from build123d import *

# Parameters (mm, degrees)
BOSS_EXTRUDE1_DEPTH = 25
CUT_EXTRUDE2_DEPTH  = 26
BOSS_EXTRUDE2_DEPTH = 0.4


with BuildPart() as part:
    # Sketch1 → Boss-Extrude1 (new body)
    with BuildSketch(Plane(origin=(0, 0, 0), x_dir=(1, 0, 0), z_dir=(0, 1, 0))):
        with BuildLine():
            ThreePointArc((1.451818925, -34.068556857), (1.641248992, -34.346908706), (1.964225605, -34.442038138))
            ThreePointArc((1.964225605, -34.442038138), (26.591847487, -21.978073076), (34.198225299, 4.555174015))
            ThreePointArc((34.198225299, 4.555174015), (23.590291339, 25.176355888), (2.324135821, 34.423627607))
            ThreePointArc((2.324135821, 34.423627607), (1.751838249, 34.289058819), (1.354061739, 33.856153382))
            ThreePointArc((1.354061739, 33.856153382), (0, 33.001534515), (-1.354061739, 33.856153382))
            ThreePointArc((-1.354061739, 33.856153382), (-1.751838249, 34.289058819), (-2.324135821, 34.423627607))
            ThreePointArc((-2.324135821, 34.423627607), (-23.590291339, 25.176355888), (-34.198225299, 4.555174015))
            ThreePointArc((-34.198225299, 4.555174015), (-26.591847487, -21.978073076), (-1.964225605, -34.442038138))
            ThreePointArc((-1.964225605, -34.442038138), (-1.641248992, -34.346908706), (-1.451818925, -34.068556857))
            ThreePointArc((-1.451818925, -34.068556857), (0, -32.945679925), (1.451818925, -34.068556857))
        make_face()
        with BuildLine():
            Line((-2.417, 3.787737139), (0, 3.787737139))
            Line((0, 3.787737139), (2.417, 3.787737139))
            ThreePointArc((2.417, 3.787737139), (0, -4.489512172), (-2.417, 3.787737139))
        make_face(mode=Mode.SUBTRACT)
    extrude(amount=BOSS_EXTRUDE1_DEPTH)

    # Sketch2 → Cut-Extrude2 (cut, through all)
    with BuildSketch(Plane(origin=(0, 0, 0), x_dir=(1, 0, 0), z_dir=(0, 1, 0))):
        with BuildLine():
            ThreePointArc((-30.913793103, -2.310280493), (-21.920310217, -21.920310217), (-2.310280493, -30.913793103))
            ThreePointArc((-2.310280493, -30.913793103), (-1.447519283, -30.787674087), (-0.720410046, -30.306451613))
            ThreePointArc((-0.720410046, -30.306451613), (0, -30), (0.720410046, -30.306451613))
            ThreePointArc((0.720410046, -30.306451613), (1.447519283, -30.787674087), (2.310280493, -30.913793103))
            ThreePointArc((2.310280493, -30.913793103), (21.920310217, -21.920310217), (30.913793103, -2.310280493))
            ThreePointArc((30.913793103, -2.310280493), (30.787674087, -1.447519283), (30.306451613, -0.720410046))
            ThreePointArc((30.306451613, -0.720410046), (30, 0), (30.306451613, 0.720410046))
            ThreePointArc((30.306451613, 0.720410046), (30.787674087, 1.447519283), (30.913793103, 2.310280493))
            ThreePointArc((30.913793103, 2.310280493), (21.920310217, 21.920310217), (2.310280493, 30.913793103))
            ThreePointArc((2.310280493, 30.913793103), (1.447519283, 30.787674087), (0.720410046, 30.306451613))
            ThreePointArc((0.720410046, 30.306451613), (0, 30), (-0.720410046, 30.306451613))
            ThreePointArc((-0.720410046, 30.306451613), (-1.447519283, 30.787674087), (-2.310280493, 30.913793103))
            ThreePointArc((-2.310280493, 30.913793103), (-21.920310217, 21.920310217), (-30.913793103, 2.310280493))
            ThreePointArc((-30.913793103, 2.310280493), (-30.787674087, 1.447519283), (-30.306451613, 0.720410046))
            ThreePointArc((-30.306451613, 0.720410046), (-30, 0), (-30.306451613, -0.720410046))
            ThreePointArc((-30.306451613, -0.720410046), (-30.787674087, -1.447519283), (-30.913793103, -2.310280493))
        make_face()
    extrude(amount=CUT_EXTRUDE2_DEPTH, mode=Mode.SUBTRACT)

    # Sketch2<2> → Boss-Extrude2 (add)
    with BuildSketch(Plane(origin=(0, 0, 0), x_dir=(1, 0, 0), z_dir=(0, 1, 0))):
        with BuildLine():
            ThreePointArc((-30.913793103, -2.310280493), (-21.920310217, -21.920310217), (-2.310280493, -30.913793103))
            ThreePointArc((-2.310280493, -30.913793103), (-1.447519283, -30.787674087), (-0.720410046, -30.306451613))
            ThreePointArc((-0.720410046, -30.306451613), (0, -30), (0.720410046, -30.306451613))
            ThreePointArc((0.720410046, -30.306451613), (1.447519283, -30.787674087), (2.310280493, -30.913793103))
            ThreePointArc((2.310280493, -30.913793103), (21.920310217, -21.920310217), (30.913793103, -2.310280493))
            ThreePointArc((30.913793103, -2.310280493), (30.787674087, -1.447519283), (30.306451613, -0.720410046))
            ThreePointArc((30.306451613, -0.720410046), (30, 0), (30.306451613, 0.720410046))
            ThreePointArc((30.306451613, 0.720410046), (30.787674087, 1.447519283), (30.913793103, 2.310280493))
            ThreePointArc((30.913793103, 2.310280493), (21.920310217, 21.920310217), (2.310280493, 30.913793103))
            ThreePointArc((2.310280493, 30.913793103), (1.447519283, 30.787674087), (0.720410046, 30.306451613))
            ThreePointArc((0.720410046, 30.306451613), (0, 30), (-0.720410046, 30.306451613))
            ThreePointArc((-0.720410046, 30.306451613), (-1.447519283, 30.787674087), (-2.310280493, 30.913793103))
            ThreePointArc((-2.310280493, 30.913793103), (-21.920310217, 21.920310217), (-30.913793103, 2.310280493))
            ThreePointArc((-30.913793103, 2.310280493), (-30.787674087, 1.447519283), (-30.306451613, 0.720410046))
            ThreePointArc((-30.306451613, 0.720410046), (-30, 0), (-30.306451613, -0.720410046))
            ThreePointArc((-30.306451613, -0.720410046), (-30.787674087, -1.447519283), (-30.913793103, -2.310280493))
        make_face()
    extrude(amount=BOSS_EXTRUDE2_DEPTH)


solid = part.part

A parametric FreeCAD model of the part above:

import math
import FreeCAD as App
import Part
import Sketcher
Q = App.Units.Quantity

doc = App.newDocument("Part")
body = doc.addObject("PartDesign::Body", "Body")

sketch1 = body.newObject("Sketcher::SketchObject", "Sketch")
sketch1.AttachmentSupport = (doc.getObject("XZ_Plane"), [""])
sketch1.MapMode = "FlatFace"
sketch1.addGeometry(Part.ArcOfCircle(Part.Circle(App.Vector(1.9, 33.9, 0), App.Vector(0, 0, 1), 0.5), math.radians(87), math.radians(165)), False)
sketch1.addGeometry(Part.ArcOfCircle(Part.Circle(App.Vector(0, 0, 0), App.Vector(0, 0, 1), 34.5), math.radians(-8), math.radians(87)), False)
sketch1.addGeometry(Part.ArcOfCircle(Part.Circle(App.Vector(0, 0, 0), App.Vector(0, 0, 1), 34.5), math.radians(-86), math.radians(-8)), False)
sketch1.addGeometry(Part.ArcOfCircle(Part.Circle(App.Vector(2.3, -33.4, 0), App.Vector(0, 0, 1), 1), math.radians(-155), math.radians(-86)), False)
sketch1.addGeometry(Part.ArcOfCircle(Part.Circle(App.Vector(0, -34.5, 0), App.Vector(0, 0, 1), 1.5), math.radians(25), math.radians(155)), False)
sketch1.addGeometry(Part.ArcOfCircle(Part.Circle(App.Vector(-2.3, -33.4, 0), App.Vector(0, 0, 1), 1), math.radians(-94), math.radians(-25)), False)
sketch1.addGeometry(Part.ArcOfCircle(Part.Circle(App.Vector(0, 0, 0), App.Vector(0, 0, 1), 34.5), math.radians(-172), math.radians(-94)), False)
sketch1.addGeometry(Part.ArcOfCircle(Part.Circle(App.Vector(0, 0, 0), App.Vector(0, 0, 1), 34.5), math.radians(93), math.radians(188)), False)
sketch1.addGeometry(Part.ArcOfCircle(Part.Circle(App.Vector(-1.9, 33.9, 0), App.Vector(0, 0, 1), 0.5), math.radians(15), math.radians(93)), False)
sketch1.addGeometry(Part.ArcOfCircle(Part.Circle(App.Vector(0, 34.4, 0), App.Vector(0, 0, 1), 1.5), math.radians(-165), math.radians(-15)), False)
sketch1.addGeometry(Part.ArcOfCircle(Part.Circle(App.Vector(0, 0, 0), App.Vector(0, 0, 1), 4.5), math.radians(-57), math.radians(237)), False)
sketch1.addGeometry(Part.LineSegment(App.Vector(-2.4, -3.8, 0), App.Vector(2.4, -3.8, 0)), False)
sketch1.addConstraint(Sketcher.Constraint("Tangent", 0, 1, 1, 2))
sketch1.addConstraint(Sketcher.Constraint("Tangent", 1, 1, 2, 2))
sketch1.addConstraint(Sketcher.Constraint("Tangent", 2, 1, 3, 2))
sketch1.addConstraint(Sketcher.Constraint("Tangent", 3, 1, 4, 1))
sketch1.addConstraint(Sketcher.Constraint("Tangent", 4, 2, 5, 2))
sketch1.addConstraint(Sketcher.Constraint("Tangent", 5, 1, 6, 2))
sketch1.addConstraint(Sketcher.Constraint("Tangent", 6, 1, 7, 2))
sketch1.addConstraint(Sketcher.Constraint("Tangent", 7, 1, 8, 2))
sketch1.addConstraint(Sketcher.Constraint("Tangent", 8, 1, 9, 1))
sketch1.addConstraint(Sketcher.Constraint("Tangent", 9, 2, 0, 2))
sketch1.addConstraint(Sketcher.Constraint("Coincident", 10, 1, 11, 2))
sketch1.addConstraint(Sketcher.Constraint("Coincident", 11, 1, 10, 2))
sketch1.addConstraint(Sketcher.Constraint("Horizontal", 11))
sketch1.addConstraint(Sketcher.Constraint("Coincident", 6, 3, 1, 3))
sketch1.addConstraint(Sketcher.Constraint("Coincident", 10, 3, 1, 3))
sketch1.addConstraint(Sketcher.Constraint("Equal", 1, 2))
sketch1.addConstraint(Sketcher.Constraint("Equal", 3, 5))
sketch1.addConstraint(Sketcher.Constraint("Equal", 2, 6))
sketch1.addConstraint(Sketcher.Constraint("Equal", 6, 7))
sketch1.addConstraint(Sketcher.Constraint("Equal", 0, 8))
sketch1.addConstraint(Sketcher.Constraint("Equal", 4, 9))
sketch1.addConstraint(Sketcher.Constraint("Symmetric", 3, 3, 5, 3, -2))
sketch1.addConstraint(Sketcher.Constraint("PointOnObject", 9, 3, -2))
sketch1.addConstraint(Sketcher.Constraint("Horizontal", 1, 1, 6, 1))
sketch1.addConstraint(Sketcher.Constraint("Radius", 3, Q("1 mm")))
sketch1.addConstraint(Sketcher.Constraint("Radius", 0, Q("0.5 mm")))
sketch1.addConstraint(Sketcher.Constraint("Radius", 1, Q("34.5 mm")))
sketch1.addConstraint(Sketcher.Constraint("Radius", 4, Q("1.5 mm")))
sketch1.addConstraint(Sketcher.Constraint("DistanceX", 11, 1, 11, 2, Q("4.834 mm")))
sketch1.addConstraint(Sketcher.Constraint("DistanceY", 1, 3, -1, 1, Q("0.002001 mm")))
sketch1.addConstraint(Sketcher.Constraint("Radius", 10, Q("4.491513 mm")))
sketch1.addConstraint(Sketcher.Constraint("DistanceY", 3, 3, -1, 1, Q("33.425899 mm")))
sketch1.addConstraint(Sketcher.Constraint("DistanceX", -1, 1, 0, 3, Q("1.935759 mm")))
sketch1.addConstraint(Sketcher.Constraint("DistanceX", -1, 1, 1, 1, Q("34.198225 mm")))
pad1 = body.newObject("PartDesign::Pad", "Pad")
pad1.Profile = sketch1
pad1.Length = 25
pad1.Reversed = True

sketch2 = body.newObject("Sketcher::SketchObject", "Sketch001")
sketch2.AttachmentSupport = (doc.getObject("XZ_Plane"), [""])
sketch2.MapMode = "FlatFace"
sketch2.addGeometry(Part.ArcOfCircle(Part.Circle(App.Vector(0, 0, 0), App.Vector(0, 0, 1), 31), math.radians(94), math.radians(176)), False)
sketch2.addGeometry(Part.ArcOfCircle(Part.Circle(App.Vector(-2.2, 28.9, 0), App.Vector(0, 0, 1), 2), math.radians(44), math.radians(94)), False)
sketch2.addGeometry(Part.ArcOfCircle(Part.Circle(App.Vector(0, 31, 0), App.Vector(0, 0, 1), 1), math.radians(-136), math.radians(-44)), False)
sketch2.addGeometry(Part.ArcOfCircle(Part.Circle(App.Vector(2.2, 28.9, 0), App.Vector(0, 0, 1), 2), math.radians(86), math.radians(136)), False)
sketch2.addGeometry(Part.ArcOfCircle(Part.Circle(App.Vector(0, 0, 0), App.Vector(0, 0, 1), 31), math.radians(4), math.radians(86)), False)
sketch2.addGeometry(Part.ArcOfCircle(Part.Circle(App.Vector(28.9, 2.2, 0), App.Vector(0, 0, 1), 2), math.radians(-46), math.radians(4)), False)
sketch2.addGeometry(Part.ArcOfCircle(Part.Circle(App.Vector(31, 0, 0), App.Vector(0, 0, 1), 1), math.radians(134), math.radians(226)), False)
sketch2.addGeometry(Part.ArcOfCircle(Part.Circle(App.Vector(28.9, -2.2, 0), App.Vector(0, 0, 1), 2), math.radians(-4), math.radians(46)), False)
sketch2.addGeometry(Part.ArcOfCircle(Part.Circle(App.Vector(0, 0, 0), App.Vector(0, 0, 1), 31), math.radians(-86), math.radians(-4)), False)
sketch2.addGeometry(Part.ArcOfCircle(Part.Circle(App.Vector(2.2, -28.9, 0), App.Vector(0, 0, 1), 2), math.radians(-136), math.radians(-86)), False)
sketch2.addGeometry(Part.ArcOfCircle(Part.Circle(App.Vector(0, -31, 0), App.Vector(0, 0, 1), 1), math.radians(44), math.radians(136)), False)
sketch2.addGeometry(Part.ArcOfCircle(Part.Circle(App.Vector(-2.2, -28.9, 0), App.Vector(0, 0, 1), 2), math.radians(-94), math.radians(-44)), False)
sketch2.addGeometry(Part.ArcOfCircle(Part.Circle(App.Vector(0, 0, 0), App.Vector(0, 0, 1), 31), math.radians(-176), math.radians(-94)), False)
sketch2.addGeometry(Part.ArcOfCircle(Part.Circle(App.Vector(-28.9, -2.2, 0), App.Vector(0, 0, 1), 2), math.radians(134), math.radians(184)), False)
sketch2.addGeometry(Part.ArcOfCircle(Part.Circle(App.Vector(-31, 0, 0), App.Vector(0, 0, 1), 1), math.radians(-46), math.radians(46)), False)
sketch2.addGeometry(Part.ArcOfCircle(Part.Circle(App.Vector(-28.9, 2.2, 0), App.Vector(0, 0, 1), 2), math.radians(176), math.radians(226)), False)
sketch2.addConstraint(Sketcher.Constraint("Tangent", 0, 1, 1, 2))
sketch2.addConstraint(Sketcher.Constraint("Tangent", 1, 1, 2, 1))
sketch2.addConstraint(Sketcher.Constraint("Tangent", 2, 2, 3, 2))
sketch2.addConstraint(Sketcher.Constraint("Tangent", 3, 1, 4, 2))
sketch2.addConstraint(Sketcher.Constraint("Tangent", 4, 1, 5, 2))
sketch2.addConstraint(Sketcher.Constraint("Tangent", 5, 1, 6, 1))
sketch2.addConstraint(Sketcher.Constraint("Tangent", 6, 2, 7, 2))
sketch2.addConstraint(Sketcher.Constraint("Tangent", 7, 1, 8, 2))
sketch2.addConstraint(Sketcher.Constraint("Tangent", 8, 1, 9, 2))
sketch2.addConstraint(Sketcher.Constraint("Tangent", 9, 1, 10, 1))
sketch2.addConstraint(Sketcher.Constraint("Tangent", 10, 2, 11, 2))
sketch2.addConstraint(Sketcher.Constraint("Tangent", 11, 1, 12, 2))
sketch2.addConstraint(Sketcher.Constraint("Tangent", 12, 1, 13, 2))
sketch2.addConstraint(Sketcher.Constraint("Tangent", 13, 1, 14, 1))
sketch2.addConstraint(Sketcher.Constraint("Tangent", 14, 2, 15, 2))
sketch2.addConstraint(Sketcher.Constraint("Tangent", 15, 1, 0, 2))
sketch2.addConstraint(Sketcher.Constraint("Coincident", 0, 3, -1, 1))
sketch2.addConstraint(Sketcher.Constraint("Coincident", 4, 3, -1, 1))
sketch2.addConstraint(Sketcher.Constraint("Coincident", 8, 3, -1, 1))
sketch2.addConstraint(Sketcher.Constraint("Coincident", 12, 3, -1, 1))
sketch2.addConstraint(Sketcher.Constraint("Equal", 1, 3))
sketch2.addConstraint(Sketcher.Constraint("Equal", 0, 4))
sketch2.addConstraint(Sketcher.Constraint("Equal", 3, 5))
sketch2.addConstraint(Sketcher.Constraint("Equal", 2, 6))
sketch2.addConstraint(Sketcher.Constraint("Equal", 5, 7))
sketch2.addConstraint(Sketcher.Constraint("Equal", 4, 8))
sketch2.addConstraint(Sketcher.Constraint("Equal", 7, 9))
sketch2.addConstraint(Sketcher.Constraint("Equal", 6, 10))
sketch2.addConstraint(Sketcher.Constraint("Equal", 9, 11))
sketch2.addConstraint(Sketcher.Constraint("Equal", 8, 12))
sketch2.addConstraint(Sketcher.Constraint("Equal", 11, 13))
sketch2.addConstraint(Sketcher.Constraint("Equal", 10, 14))
sketch2.addConstraint(Sketcher.Constraint("Equal", 13, 15))
sketch2.addConstraint(Sketcher.Constraint("Symmetric", 2, 3, 10, 3, -1, 1))
sketch2.addConstraint(Sketcher.Constraint("Symmetric", 6, 3, 14, 3, -1, 1))
sketch2.addConstraint(Sketcher.Constraint("PointOnObject", 2, 3, -2))
sketch2.addConstraint(Sketcher.Constraint("PointOnObject", 6, 3, -1))
sketch2.addConstraint(Sketcher.Constraint("Radius", 0, Q("31 mm")))
sketch2.addConstraint(Sketcher.Constraint("Radius", 1, Q("2 mm")))
sketch2.addConstraint(Sketcher.Constraint("Radius", 2, Q("1 mm")))
sketch2.addConstraint(Sketcher.Constraint("DistanceY", -1, 1, 2, 3, Q("31 mm")))
sketch2.addConstraint(Sketcher.Constraint("DistanceX", -1, 1, 6, 3, Q("31 mm")))
pocket1 = body.newObject("PartDesign::Pocket", "Pocket")
pocket1.Profile = sketch2
pocket1.Type = "ThroughAll"

sketch3 = body.newObject("Sketcher::SketchObject", "Sketch002")
sketch3.AttachmentSupport = (doc.getObject("XZ_Plane"), [""])
sketch3.MapMode = "FlatFace"
sketch3.addGeometry(Part.ArcOfCircle(Part.Circle(App.Vector(0, 0, 0), App.Vector(0, 0, 1), 31), math.radians(94), math.radians(176)), False)
sketch3.addGeometry(Part.ArcOfCircle(Part.Circle(App.Vector(-2.2, 28.9, 0), App.Vector(0, 0, 1), 2), math.radians(44), math.radians(94)), False)
sketch3.addGeometry(Part.ArcOfCircle(Part.Circle(App.Vector(0, 31, 0), App.Vector(0, 0, 1), 1), math.radians(-136), math.radians(-44)), False)
sketch3.addGeometry(Part.ArcOfCircle(Part.Circle(App.Vector(2.2, 28.9, 0), App.Vector(0, 0, 1), 2), math.radians(86), math.radians(136)), False)
sketch3.addGeometry(Part.ArcOfCircle(Part.Circle(App.Vector(0, 0, 0), App.Vector(0, 0, 1), 31), math.radians(4), math.radians(86)), False)
sketch3.addGeometry(Part.ArcOfCircle(Part.Circle(App.Vector(28.9, 2.2, 0), App.Vector(0, 0, 1), 2), math.radians(-46), math.radians(4)), False)
sketch3.addGeometry(Part.ArcOfCircle(Part.Circle(App.Vector(31, 0, 0), App.Vector(0, 0, 1), 1), math.radians(134), math.radians(226)), False)
sketch3.addGeometry(Part.ArcOfCircle(Part.Circle(App.Vector(28.9, -2.2, 0), App.Vector(0, 0, 1), 2), math.radians(-4), math.radians(46)), False)
sketch3.addGeometry(Part.ArcOfCircle(Part.Circle(App.Vector(0, 0, 0), App.Vector(0, 0, 1), 31), math.radians(-86), math.radians(-4)), False)
sketch3.addGeometry(Part.ArcOfCircle(Part.Circle(App.Vector(2.2, -28.9, 0), App.Vector(0, 0, 1), 2), math.radians(-136), math.radians(-86)), False)
sketch3.addGeometry(Part.ArcOfCircle(Part.Circle(App.Vector(0, -31, 0), App.Vector(0, 0, 1), 1), math.radians(44), math.radians(136)), False)
sketch3.addGeometry(Part.ArcOfCircle(Part.Circle(App.Vector(-2.2, -28.9, 0), App.Vector(0, 0, 1), 2), math.radians(-94), math.radians(-44)), False)
sketch3.addGeometry(Part.ArcOfCircle(Part.Circle(App.Vector(0, 0, 0), App.Vector(0, 0, 1), 31), math.radians(-176), math.radians(-94)), False)
sketch3.addGeometry(Part.ArcOfCircle(Part.Circle(App.Vector(-28.9, -2.2, 0), App.Vector(0, 0, 1), 2), math.radians(134), math.radians(184)), False)
sketch3.addGeometry(Part.ArcOfCircle(Part.Circle(App.Vector(-31, 0, 0), App.Vector(0, 0, 1), 1), math.radians(-46), math.radians(46)), False)
sketch3.addGeometry(Part.ArcOfCircle(Part.Circle(App.Vector(-28.9, 2.2, 0), App.Vector(0, 0, 1), 2), math.radians(176), math.radians(226)), False)
sketch3.addConstraint(Sketcher.Constraint("Tangent", 0, 1, 1, 2))
sketch3.addConstraint(Sketcher.Constraint("Tangent", 1, 1, 2, 1))
sketch3.addConstraint(Sketcher.Constraint("Tangent", 2, 2, 3, 2))
sketch3.addConstraint(Sketcher.Constraint("Tangent", 3, 1, 4, 2))
sketch3.addConstraint(Sketcher.Constraint("Tangent", 4, 1, 5, 2))
sketch3.addConstraint(Sketcher.Constraint("Tangent", 5, 1, 6, 1))
sketch3.addConstraint(Sketcher.Constraint("Tangent", 6, 2, 7, 2))
sketch3.addConstraint(Sketcher.Constraint("Tangent", 7, 1, 8, 2))
sketch3.addConstraint(Sketcher.Constraint("Tangent", 8, 1, 9, 2))
sketch3.addConstraint(Sketcher.Constraint("Tangent", 9, 1, 10, 1))
sketch3.addConstraint(Sketcher.Constraint("Tangent", 10, 2, 11, 2))
sketch3.addConstraint(Sketcher.Constraint("Tangent", 11, 1, 12, 2))
sketch3.addConstraint(Sketcher.Constraint("Tangent", 12, 1, 13, 2))
sketch3.addConstraint(Sketcher.Constraint("Tangent", 13, 1, 14, 1))
sketch3.addConstraint(Sketcher.Constraint("Tangent", 14, 2, 15, 2))
sketch3.addConstraint(Sketcher.Constraint("Tangent", 15, 1, 0, 2))
sketch3.addConstraint(Sketcher.Constraint("Coincident", 0, 3, -1, 1))
sketch3.addConstraint(Sketcher.Constraint("Coincident", 4, 3, -1, 1))
sketch3.addConstraint(Sketcher.Constraint("Coincident", 8, 3, -1, 1))
sketch3.addConstraint(Sketcher.Constraint("Coincident", 12, 3, -1, 1))
sketch3.addConstraint(Sketcher.Constraint("Equal", 1, 3))
sketch3.addConstraint(Sketcher.Constraint("Equal", 0, 4))
sketch3.addConstraint(Sketcher.Constraint("Equal", 3, 5))
sketch3.addConstraint(Sketcher.Constraint("Equal", 2, 6))
sketch3.addConstraint(Sketcher.Constraint("Equal", 5, 7))
sketch3.addConstraint(Sketcher.Constraint("Equal", 4, 8))
sketch3.addConstraint(Sketcher.Constraint("Equal", 7, 9))
sketch3.addConstraint(Sketcher.Constraint("Equal", 6, 10))
sketch3.addConstraint(Sketcher.Constraint("Equal", 9, 11))
sketch3.addConstraint(Sketcher.Constraint("Equal", 8, 12))
sketch3.addConstraint(Sketcher.Constraint("Equal", 11, 13))
sketch3.addConstraint(Sketcher.Constraint("Equal", 10, 14))
sketch3.addConstraint(Sketcher.Constraint("Equal", 13, 15))
sketch3.addConstraint(Sketcher.Constraint("Symmetric", 2, 3, 10, 3, -1, 1))
sketch3.addConstraint(Sketcher.Constraint("Symmetric", 6, 3, 14, 3, -1, 1))
sketch3.addConstraint(Sketcher.Constraint("PointOnObject", 2, 3, -2))
sketch3.addConstraint(Sketcher.Constraint("PointOnObject", 6, 3, -1))
sketch3.addConstraint(Sketcher.Constraint("Radius", 0, Q("31 mm")))
sketch3.addConstraint(Sketcher.Constraint("Radius", 1, Q("2 mm")))
sketch3.addConstraint(Sketcher.Constraint("Radius", 2, Q("1 mm")))
sketch3.addConstraint(Sketcher.Constraint("DistanceY", -1, 1, 2, 3, Q("31 mm")))
sketch3.addConstraint(Sketcher.Constraint("DistanceX", -1, 1, 6, 3, Q("31 mm")))
pad2 = body.newObject("PartDesign::Pad", "Pad001")
pad2.Profile = sketch3
pad2.Length = 0.4
pad2.Reversed = True

doc.recompute()
